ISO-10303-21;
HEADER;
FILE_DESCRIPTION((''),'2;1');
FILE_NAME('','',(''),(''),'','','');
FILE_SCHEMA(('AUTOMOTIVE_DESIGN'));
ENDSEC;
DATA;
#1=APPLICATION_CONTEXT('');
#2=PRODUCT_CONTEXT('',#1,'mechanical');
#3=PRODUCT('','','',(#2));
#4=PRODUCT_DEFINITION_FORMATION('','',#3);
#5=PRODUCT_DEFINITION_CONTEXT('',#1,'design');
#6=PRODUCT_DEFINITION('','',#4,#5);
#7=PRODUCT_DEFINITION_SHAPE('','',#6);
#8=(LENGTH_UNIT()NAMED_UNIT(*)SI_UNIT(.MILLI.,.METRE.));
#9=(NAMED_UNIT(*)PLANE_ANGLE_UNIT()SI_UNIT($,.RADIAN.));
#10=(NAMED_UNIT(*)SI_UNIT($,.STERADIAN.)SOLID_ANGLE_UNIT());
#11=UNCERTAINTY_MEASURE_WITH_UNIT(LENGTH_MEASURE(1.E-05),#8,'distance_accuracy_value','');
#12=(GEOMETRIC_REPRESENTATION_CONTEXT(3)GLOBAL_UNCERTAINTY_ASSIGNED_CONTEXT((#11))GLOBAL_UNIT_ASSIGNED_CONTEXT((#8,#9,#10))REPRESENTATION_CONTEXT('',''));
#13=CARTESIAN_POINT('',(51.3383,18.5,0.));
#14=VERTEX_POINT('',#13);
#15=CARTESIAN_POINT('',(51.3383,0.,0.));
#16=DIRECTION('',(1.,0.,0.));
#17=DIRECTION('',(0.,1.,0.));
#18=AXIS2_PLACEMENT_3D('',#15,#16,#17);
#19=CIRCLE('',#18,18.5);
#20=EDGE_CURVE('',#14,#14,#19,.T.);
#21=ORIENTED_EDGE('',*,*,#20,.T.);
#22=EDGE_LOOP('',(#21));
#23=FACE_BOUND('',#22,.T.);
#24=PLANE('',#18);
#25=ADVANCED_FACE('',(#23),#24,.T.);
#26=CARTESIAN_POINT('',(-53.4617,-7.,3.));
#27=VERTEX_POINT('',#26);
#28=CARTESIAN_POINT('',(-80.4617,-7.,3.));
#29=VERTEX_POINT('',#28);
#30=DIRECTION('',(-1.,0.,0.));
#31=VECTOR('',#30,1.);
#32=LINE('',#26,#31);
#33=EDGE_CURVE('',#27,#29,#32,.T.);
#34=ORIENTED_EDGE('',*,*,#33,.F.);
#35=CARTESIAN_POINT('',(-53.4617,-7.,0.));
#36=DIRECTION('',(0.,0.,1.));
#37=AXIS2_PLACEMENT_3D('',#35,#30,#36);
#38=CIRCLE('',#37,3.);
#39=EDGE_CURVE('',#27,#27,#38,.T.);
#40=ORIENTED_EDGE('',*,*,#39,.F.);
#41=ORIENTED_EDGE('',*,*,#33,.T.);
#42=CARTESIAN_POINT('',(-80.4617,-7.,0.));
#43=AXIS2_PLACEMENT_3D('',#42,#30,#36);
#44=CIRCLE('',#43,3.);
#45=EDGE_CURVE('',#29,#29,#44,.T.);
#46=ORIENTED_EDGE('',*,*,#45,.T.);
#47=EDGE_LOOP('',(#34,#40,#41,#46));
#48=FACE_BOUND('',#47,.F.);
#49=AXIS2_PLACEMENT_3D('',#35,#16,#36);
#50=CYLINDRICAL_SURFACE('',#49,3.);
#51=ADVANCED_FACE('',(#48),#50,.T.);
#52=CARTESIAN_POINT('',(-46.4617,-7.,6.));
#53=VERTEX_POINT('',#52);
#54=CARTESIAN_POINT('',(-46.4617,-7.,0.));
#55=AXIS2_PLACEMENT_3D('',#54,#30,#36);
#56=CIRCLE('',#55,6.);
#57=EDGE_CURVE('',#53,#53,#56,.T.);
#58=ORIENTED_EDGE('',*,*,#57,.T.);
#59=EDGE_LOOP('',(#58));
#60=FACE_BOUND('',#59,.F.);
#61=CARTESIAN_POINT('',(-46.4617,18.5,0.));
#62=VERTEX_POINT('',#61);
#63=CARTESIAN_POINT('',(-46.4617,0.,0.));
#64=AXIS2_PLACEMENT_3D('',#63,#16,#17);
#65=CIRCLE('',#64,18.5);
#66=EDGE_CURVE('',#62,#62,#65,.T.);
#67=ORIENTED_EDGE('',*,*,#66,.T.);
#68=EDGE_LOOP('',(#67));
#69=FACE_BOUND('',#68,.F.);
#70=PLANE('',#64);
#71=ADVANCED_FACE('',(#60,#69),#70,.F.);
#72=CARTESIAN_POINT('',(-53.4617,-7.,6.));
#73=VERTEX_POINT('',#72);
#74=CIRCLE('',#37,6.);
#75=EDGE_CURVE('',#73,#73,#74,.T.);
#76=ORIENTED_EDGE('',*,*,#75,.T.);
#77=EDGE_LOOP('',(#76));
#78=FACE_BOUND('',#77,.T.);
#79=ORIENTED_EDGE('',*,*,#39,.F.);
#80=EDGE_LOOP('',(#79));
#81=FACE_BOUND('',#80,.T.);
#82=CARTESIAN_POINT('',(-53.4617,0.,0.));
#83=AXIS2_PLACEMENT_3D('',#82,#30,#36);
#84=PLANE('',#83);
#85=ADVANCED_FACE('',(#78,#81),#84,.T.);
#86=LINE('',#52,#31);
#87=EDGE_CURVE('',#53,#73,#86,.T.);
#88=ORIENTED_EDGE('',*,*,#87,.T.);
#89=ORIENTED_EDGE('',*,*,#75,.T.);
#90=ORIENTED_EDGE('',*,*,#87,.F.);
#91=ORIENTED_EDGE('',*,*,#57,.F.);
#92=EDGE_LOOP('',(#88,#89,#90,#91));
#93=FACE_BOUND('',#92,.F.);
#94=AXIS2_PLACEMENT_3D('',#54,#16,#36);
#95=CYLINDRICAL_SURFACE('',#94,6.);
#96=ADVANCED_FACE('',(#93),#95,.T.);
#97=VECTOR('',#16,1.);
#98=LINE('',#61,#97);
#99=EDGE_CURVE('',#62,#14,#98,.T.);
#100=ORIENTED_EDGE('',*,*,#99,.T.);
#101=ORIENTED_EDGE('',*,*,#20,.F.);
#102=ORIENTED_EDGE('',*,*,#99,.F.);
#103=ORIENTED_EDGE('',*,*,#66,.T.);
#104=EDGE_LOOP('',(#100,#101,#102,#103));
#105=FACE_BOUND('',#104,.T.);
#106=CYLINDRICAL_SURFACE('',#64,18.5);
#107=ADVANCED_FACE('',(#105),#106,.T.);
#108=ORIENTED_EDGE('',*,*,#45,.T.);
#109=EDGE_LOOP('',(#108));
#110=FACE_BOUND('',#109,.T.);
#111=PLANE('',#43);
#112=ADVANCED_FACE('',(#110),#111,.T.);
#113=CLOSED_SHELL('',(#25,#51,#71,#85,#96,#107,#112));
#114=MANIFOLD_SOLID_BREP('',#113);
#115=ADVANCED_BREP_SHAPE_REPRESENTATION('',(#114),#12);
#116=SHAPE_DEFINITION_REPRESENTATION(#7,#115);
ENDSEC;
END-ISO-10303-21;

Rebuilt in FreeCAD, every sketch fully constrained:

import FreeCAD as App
import Part
import Sketcher
Q = App.Units.Quantity


def add_polygon(sketch, points):
    """Adds a closed chain of lines whose ends are joined by coincident constraints."""
    first, n = sketch.GeometryCount, len(points)
    for a, b in zip(points, points[1:] + points[:1]):
        sketch.addGeometry(Part.LineSegment(App.Vector(*a, 0), App.Vector(*b, 0)), False)
    for i in range(n):
        sketch.addConstraint(Sketcher.Constraint("Coincident", first + i, 2, first + (i + 1) % n, 1))

doc = App.newDocument("Part")
body = doc.addObject("PartDesign::Body", "Body")

# Sketch on XY plane
sketch1 = body.newObject("Sketcher::SketchObject", "Sketch")
sketch1.AttachmentSupport = (doc.getObject("XY_Plane"), [""])
sketch1.MapMode = "FlatFace"
add_polygon(sketch1, [(51, 18), (-46, 18), (-46, 0), (51, 0)])  # lines 0-3
sketch1.addConstraint([
    Sketcher.Constraint("Horizontal", 0),
    Sketcher.Constraint("Vertical", 1),
    Sketcher.Constraint("Horizontal", 2),
    Sketcher.Constraint("Vertical", 3),
    Sketcher.Constraint("PointOnObject", 1, 2, -1),
    Sketcher.Constraint("DistanceX", 0, 2, 0, 1, Q("97.8 mm")),
    Sketcher.Constraint("DistanceY", 1, 2, 1, 1, Q("18.5 mm")),
    Sketcher.Constraint("DistanceX", 0, 2, -1, 1, Q("46.4617 mm")),
])
revolution = body.newObject("PartDesign::Revolution", "Revolution")
revolution.Profile = sketch1
revolution.ReferenceAxis = (sketch1, ["H_Axis"])
revolution.Angle = 360

# Sketch on YZ plane
sketch2 = body.newObject("Sketcher::SketchObject", "Sketch001")
sketch2.AttachmentSupport = (doc.getObject("YZ_Plane"), [""])
sketch2.MapMode = "FlatFace"
sketch2.AttachmentOffset = App.Placement(App.Vector(0, 0, -46.4617), App.Rotation())
sketch2.addGeometry(Part.Circle(App.Vector(-7, 0, 0), App.Vector(0, 0, 1), 6), False)
sketch2.addConstraint([
    Sketcher.Constraint("PointOnObject", 0, 3, -1),
    Sketcher.Constraint("Diameter", 0, Q("12 mm")),
    Sketcher.Constraint("DistanceX", 0, 3, -1, 1, Q("7 mm")),
])
pad1 = body.newObject("PartDesign::Pad", "Pad")
pad1.Profile = sketch2
pad1.Length = 7
pad1.Reversed = True

# Sketch on YZ plane
sketch3 = body.newObject("Sketcher::SketchObject", "Sketch002")
sketch3.AttachmentSupport = (doc.getObject("YZ_Plane"), [""])
sketch3.MapMode = "FlatFace"
sketch3.AttachmentOffset = App.Placement(App.Vector(0, 0, -53.4617), App.Rotation())
sketch3.addGeometry(Part.Circle(App.Vector(-7, 0, 0), App.Vector(0, 0, 1), 3), False)
sketch3.addConstraint([
    Sketcher.Constraint("PointOnObject", 0, 3, -1),
    Sketcher.Constraint("Diameter", 0, Q("6 mm")),
    Sketcher.Constraint("DistanceX", 0, 3, -1, 1, Q("7 mm")),
])
pad2 = body.newObject("PartDesign::Pad", "Pad001")
pad2.Profile = sketch3
pad2.Length = 27
pad2.Reversed = True

doc.recompute()
